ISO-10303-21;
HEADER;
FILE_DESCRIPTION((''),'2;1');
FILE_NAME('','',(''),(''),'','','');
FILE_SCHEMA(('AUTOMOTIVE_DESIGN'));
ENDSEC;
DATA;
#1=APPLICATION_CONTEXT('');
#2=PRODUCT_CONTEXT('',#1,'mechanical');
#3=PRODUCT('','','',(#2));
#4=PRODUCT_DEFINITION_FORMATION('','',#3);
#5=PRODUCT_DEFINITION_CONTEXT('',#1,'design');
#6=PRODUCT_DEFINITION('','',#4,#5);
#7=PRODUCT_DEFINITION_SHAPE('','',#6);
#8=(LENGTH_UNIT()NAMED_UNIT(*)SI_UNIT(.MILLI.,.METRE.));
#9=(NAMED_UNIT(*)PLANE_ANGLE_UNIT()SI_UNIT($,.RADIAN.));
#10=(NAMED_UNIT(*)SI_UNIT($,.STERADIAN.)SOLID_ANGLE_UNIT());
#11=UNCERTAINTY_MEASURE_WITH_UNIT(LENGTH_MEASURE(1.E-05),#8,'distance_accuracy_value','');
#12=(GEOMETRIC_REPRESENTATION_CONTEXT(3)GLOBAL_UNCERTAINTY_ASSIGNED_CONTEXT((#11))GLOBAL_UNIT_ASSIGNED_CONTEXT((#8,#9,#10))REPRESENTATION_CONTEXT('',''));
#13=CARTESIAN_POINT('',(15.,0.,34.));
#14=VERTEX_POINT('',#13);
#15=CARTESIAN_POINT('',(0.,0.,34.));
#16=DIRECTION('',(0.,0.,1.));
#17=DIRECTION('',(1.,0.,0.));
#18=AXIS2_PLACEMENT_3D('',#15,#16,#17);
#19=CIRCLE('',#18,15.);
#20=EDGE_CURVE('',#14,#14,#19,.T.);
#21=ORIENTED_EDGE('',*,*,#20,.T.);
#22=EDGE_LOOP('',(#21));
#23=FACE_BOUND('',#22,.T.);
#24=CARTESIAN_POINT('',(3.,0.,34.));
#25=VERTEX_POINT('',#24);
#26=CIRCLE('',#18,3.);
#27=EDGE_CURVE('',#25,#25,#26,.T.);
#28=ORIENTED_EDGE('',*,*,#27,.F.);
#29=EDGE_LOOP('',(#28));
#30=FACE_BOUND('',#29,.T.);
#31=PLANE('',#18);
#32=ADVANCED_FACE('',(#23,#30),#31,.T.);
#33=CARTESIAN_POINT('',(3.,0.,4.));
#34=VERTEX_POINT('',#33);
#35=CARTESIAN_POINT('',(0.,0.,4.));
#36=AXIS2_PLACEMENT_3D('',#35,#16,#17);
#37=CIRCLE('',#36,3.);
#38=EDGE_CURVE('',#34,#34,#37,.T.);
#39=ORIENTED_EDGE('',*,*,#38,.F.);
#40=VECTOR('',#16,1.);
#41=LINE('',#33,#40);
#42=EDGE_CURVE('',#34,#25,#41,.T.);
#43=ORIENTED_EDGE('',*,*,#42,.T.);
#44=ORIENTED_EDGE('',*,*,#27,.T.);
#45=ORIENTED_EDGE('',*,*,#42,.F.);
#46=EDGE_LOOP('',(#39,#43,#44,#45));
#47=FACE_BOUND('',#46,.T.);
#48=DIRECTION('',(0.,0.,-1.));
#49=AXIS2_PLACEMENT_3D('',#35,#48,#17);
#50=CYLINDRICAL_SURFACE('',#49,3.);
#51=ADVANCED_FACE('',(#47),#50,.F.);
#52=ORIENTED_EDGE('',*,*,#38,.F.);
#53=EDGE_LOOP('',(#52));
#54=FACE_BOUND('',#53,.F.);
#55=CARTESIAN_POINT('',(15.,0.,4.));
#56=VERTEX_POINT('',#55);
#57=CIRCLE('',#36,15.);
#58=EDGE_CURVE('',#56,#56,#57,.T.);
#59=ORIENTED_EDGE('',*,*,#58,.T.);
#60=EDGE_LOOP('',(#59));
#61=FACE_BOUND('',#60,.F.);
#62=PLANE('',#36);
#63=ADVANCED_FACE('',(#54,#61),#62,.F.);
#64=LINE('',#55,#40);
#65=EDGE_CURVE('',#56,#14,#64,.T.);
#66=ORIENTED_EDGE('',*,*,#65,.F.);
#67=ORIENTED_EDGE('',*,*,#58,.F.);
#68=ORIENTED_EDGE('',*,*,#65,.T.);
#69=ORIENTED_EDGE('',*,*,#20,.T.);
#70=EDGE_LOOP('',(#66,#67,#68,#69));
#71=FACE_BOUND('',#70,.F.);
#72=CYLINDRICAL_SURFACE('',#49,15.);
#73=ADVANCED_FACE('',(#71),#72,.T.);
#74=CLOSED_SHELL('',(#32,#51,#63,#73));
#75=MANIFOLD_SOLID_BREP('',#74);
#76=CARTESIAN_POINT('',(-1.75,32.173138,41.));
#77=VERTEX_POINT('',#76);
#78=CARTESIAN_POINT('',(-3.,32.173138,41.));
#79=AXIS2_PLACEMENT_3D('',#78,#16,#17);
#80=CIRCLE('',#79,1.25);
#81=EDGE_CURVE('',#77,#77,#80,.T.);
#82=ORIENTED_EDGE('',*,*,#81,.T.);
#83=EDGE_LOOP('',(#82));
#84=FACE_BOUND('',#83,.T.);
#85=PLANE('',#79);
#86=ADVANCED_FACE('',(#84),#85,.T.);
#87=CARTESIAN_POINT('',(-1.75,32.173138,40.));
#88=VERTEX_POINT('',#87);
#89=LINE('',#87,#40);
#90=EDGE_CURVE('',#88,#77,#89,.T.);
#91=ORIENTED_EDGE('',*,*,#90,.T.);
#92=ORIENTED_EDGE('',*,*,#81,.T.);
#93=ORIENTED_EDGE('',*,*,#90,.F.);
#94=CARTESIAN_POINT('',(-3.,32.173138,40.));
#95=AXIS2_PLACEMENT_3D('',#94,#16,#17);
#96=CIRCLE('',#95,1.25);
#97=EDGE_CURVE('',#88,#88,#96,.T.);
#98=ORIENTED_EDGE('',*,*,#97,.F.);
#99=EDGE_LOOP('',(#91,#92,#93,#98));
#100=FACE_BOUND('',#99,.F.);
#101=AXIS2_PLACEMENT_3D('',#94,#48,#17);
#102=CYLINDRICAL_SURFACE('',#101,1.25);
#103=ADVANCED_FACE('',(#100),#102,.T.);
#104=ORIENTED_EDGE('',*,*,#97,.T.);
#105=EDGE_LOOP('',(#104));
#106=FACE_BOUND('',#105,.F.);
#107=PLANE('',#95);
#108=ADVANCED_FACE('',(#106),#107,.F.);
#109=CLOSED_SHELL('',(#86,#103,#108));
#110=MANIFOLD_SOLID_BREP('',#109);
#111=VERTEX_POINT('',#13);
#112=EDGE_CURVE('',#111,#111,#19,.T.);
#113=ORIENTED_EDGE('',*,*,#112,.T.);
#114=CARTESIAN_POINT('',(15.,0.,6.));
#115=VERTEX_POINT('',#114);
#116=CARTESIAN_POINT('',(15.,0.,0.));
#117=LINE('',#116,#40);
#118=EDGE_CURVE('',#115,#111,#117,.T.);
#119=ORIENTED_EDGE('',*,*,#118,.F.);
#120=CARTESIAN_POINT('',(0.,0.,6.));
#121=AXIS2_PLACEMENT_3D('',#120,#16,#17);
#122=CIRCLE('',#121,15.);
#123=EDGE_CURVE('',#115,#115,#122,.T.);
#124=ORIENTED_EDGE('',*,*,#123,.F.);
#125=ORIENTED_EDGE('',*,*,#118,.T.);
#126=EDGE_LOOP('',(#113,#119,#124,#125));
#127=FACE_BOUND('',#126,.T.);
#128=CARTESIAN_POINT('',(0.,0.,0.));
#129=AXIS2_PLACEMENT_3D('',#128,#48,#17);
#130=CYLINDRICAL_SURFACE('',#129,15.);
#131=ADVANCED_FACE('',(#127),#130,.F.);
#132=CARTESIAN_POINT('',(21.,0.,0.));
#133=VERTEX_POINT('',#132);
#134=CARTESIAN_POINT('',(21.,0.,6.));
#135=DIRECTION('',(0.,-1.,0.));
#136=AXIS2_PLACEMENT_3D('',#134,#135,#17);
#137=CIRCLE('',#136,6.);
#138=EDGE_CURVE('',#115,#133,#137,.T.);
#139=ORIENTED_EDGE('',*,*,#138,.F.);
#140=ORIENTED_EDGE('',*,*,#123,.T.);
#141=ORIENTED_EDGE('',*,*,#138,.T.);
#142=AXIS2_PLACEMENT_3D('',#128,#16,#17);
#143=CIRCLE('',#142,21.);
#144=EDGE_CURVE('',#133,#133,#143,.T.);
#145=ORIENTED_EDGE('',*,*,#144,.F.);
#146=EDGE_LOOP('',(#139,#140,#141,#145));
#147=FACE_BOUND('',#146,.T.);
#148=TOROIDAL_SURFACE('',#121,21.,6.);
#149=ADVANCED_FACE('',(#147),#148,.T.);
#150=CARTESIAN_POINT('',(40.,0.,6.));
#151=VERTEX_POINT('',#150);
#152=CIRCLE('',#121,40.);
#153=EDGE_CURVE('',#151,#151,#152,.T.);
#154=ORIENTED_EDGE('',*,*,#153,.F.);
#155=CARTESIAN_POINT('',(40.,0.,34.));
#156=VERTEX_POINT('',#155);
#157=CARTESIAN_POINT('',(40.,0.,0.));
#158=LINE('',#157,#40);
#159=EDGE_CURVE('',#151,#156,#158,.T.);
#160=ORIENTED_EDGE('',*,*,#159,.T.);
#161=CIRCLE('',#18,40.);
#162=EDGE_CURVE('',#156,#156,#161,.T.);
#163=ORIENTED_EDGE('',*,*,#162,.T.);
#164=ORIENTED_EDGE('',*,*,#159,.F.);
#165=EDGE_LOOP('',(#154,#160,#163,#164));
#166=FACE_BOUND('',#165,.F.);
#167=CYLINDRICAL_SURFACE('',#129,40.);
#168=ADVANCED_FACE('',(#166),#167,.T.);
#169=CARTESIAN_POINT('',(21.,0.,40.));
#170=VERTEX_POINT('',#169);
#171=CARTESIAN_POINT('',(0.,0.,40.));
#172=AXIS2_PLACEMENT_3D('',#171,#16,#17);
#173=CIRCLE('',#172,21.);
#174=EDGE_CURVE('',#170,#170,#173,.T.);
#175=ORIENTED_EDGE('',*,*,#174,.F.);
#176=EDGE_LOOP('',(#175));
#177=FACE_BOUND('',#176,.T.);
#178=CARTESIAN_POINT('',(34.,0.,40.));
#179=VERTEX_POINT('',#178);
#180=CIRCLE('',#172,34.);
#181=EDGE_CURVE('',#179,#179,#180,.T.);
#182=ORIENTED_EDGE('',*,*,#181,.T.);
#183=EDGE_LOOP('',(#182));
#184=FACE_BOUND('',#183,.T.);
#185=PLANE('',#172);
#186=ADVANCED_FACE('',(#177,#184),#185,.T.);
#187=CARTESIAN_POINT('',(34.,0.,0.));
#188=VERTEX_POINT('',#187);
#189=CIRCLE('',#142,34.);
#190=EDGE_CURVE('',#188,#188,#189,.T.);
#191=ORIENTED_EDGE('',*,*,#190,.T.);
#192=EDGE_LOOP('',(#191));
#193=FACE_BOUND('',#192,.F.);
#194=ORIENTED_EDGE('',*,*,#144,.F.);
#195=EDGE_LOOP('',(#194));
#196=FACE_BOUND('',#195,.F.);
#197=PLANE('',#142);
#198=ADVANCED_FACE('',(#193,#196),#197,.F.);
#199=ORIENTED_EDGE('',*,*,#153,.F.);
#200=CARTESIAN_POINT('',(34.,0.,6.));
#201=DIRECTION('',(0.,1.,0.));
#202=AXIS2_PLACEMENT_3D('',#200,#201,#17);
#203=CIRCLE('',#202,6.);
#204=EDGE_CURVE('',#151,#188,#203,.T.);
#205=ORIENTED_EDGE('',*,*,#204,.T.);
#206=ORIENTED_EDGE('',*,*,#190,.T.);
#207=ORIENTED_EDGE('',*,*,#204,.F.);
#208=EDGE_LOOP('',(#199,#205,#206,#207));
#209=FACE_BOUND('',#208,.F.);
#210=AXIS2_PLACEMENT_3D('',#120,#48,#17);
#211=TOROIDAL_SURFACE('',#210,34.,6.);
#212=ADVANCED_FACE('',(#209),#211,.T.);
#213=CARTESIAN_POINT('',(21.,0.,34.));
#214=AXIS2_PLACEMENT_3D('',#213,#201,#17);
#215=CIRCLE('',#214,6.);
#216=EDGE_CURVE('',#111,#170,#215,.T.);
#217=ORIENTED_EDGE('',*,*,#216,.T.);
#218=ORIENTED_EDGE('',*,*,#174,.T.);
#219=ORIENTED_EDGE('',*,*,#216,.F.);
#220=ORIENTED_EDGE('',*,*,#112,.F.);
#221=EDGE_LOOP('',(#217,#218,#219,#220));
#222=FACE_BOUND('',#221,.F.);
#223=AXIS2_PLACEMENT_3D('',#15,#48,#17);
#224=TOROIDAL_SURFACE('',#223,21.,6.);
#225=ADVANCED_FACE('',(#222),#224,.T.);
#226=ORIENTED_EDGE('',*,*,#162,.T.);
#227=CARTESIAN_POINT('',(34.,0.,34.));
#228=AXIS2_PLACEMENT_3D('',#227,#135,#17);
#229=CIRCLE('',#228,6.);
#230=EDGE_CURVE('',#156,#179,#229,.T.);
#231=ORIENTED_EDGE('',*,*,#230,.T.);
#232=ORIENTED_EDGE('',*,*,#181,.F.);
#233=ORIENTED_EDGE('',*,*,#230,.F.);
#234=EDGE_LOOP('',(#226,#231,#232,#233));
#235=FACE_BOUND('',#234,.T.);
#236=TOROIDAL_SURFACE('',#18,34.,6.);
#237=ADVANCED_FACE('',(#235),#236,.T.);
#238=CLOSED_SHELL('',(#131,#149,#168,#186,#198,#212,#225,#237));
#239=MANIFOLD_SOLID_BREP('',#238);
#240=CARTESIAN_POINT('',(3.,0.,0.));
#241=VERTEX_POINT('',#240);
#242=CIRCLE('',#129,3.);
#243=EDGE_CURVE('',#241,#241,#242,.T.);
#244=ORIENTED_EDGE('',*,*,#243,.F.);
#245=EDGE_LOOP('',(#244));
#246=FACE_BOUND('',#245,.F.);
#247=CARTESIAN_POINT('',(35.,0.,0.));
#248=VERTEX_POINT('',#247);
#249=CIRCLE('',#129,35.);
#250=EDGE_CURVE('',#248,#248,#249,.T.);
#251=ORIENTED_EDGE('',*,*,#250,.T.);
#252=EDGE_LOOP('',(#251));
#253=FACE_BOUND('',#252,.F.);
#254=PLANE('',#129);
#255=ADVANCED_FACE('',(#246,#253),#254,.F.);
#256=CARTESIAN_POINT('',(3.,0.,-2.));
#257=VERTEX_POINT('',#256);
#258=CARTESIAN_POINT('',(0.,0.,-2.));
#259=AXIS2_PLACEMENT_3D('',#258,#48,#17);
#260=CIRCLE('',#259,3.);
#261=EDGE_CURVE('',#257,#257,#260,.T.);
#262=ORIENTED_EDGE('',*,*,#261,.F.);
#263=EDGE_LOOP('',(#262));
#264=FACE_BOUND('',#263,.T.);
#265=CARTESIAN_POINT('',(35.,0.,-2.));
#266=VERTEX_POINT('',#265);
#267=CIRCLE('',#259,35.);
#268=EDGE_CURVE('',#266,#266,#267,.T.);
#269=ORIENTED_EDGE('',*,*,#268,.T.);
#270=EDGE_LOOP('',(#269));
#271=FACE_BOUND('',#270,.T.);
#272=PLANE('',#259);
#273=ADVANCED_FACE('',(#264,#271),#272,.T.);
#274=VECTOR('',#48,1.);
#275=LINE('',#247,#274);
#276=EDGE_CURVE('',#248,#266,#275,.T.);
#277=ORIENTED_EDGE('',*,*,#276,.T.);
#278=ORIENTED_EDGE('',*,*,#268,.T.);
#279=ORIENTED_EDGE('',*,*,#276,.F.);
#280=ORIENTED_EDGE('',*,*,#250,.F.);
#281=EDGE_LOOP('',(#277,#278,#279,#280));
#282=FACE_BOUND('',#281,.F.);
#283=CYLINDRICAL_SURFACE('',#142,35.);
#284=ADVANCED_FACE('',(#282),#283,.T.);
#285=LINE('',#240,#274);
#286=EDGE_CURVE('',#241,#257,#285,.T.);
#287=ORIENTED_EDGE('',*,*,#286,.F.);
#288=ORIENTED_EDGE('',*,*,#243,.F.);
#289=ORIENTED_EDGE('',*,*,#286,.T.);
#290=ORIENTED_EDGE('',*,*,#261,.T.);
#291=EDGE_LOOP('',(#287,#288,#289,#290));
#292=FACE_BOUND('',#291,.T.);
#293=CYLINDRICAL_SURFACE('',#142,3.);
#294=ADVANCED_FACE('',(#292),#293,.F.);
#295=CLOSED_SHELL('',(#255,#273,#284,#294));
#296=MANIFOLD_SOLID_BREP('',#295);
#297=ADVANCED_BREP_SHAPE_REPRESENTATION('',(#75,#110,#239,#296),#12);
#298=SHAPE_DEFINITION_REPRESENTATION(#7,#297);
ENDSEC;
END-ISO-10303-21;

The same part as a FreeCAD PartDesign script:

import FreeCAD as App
import Part
import Sketcher

V = App.Vector
Q = App.Units.Quantity


def edges_at(feature, points):
    """Names of the edges that pass closest to the given points."""
    edges = feature.Shape.Edges
    near = lambda p: min(range(len(edges)), key=lambda i: edges[i].distToShape(Part.Vertex(*p))[0])
    return sorted({f"Edge{near(p) + 1}" for p in points})

doc = App.newDocument("Part")
body = doc.addObject("PartDesign::Body", "Body")

# Sketch on XY plane
sketch1 = body.newObject("Sketcher::SketchObject", "Sketch")
sketch1.AttachmentSupport = (doc.getObject("XY_Plane"), [""])
sketch1.MapMode = "FlatFace"
sketch1.addGeometry([
    Part.Circle(V(0, 0, 0), V(0, 0, 1), 40),
    Part.Circle(V(0, 0, 0), V(0, 0, 1), 15),
], False)
sketch1.addConstraint([
    Sketcher.Constraint("Coincident", 0, 3, -1, 1),
    Sketcher.Constraint("Coincident", 1, 3, -1, 1),
    Sketcher.Constraint("Diameter", 0, Q("80 mm")),
    Sketcher.Constraint("Diameter", 1, Q("30 mm")),
])
pad1 = body.newObject("PartDesign::Pad", "Pad")
pad1.Profile = sketch1
pad1.Length = 40
doc.recompute()

fillet = body.newObject("PartDesign::Fillet", "Fillet")
fillet.Base = (pad1, edges_at(pad1, [
    (-15, 0, 40),
    (-40, 0, 40),
    (-40, 0, 0),
    (-15, 0, 0),
]))
fillet.Radius = 6
body2 = doc.addObject("PartDesign::Body", "Body001")

# Sketch on XY plane
sketch2 = body2.newObject("Sketcher::SketchObject", "Sketch001")
sketch2.AttachmentSupport = (doc.getObject("XY_Plane001"), [""])
sketch2.MapMode = "FlatFace"
sketch2.AttachmentOffset = App.Placement(V(0, 0, 4), App.Rotation())
sketch2.addGeometry([
    Part.Circle(V(0, 0, 0), V(0, 0, 1), 15),
    Part.Circle(V(0, 0, 0), V(0, 0, 1), 3),
], False)
sketch2.addConstraint([
    Sketcher.Constraint("Coincident", 0, 3, -1, 1),
    Sketcher.Constraint("Coincident", 1, 3, -1, 1),
    Sketcher.Constraint("Diameter", 0, Q("30 mm")),
    Sketcher.Constraint("Diameter", 1, Q("6 mm")),
])
pad2 = body2.newObject("PartDesign::Pad", "Pad001")
pad2.Profile = sketch2
pad2.Length = 30
body3 = doc.addObject("PartDesign::Body", "Body002")

# Sketch on XY plane
sketch3 = body3.newObject("Sketcher::SketchObject", "Sketch002")
sketch3.AttachmentSupport = (doc.getObject("XY_Plane002"), [""])
sketch3.MapMode = "FlatFace"
sketch3.AttachmentOffset = App.Placement(V(0, 0, 40), App.Rotation())
sketch3.addGeometry(Part.Circle(V(-3, 32.2, 0), V(0, 0, 1), 1.2), False)
sketch3.addConstraint([
    Sketcher.Constraint("Diameter", 0, Q("2.5 mm")),
    Sketcher.Constraint("DistanceX", 0, 3, -1, 1, Q("3 mm")),
    Sketcher.Constraint("DistanceY", -1, 1, 0, 3, Q("32.173138 mm")),
])
pad3 = body3.newObject("PartDesign::Pad", "Pad002")
pad3.Profile = sketch3
pad3.Length = 1
body4 = doc.addObject("PartDesign::Body", "Body003")

# Sketch on XY plane
sketch4 = body4.newObject("Sketcher::SketchObject", "Sketch003")
sketch4.AttachmentSupport = (doc.getObject("XY_Plane003"), [""])
sketch4.MapMode = "FlatFace"
sketch4.addGeometry([
    Part.Circle(V(0, 0, 0), V(0, 0, 1), 35),
    Part.Circle(V(0, 0, 0), V(0, 0, 1), 3),
], False)
sketch4.addConstraint([
    Sketcher.Constraint("Coincident", 0, 3, -1, 1),
    Sketcher.Constraint("Coincident", 1, 3, -1, 1),
    Sketcher.Constraint("Diameter", 0, Q("70 mm")),
    Sketcher.Constraint("Diameter", 1, Q("6 mm")),
])
pad4 = body4.newObject("PartDesign::Pad", "Pad003")
pad4.Profile = sketch4
pad4.Length = 2
pad4.Reversed = True

doc.recompute()
